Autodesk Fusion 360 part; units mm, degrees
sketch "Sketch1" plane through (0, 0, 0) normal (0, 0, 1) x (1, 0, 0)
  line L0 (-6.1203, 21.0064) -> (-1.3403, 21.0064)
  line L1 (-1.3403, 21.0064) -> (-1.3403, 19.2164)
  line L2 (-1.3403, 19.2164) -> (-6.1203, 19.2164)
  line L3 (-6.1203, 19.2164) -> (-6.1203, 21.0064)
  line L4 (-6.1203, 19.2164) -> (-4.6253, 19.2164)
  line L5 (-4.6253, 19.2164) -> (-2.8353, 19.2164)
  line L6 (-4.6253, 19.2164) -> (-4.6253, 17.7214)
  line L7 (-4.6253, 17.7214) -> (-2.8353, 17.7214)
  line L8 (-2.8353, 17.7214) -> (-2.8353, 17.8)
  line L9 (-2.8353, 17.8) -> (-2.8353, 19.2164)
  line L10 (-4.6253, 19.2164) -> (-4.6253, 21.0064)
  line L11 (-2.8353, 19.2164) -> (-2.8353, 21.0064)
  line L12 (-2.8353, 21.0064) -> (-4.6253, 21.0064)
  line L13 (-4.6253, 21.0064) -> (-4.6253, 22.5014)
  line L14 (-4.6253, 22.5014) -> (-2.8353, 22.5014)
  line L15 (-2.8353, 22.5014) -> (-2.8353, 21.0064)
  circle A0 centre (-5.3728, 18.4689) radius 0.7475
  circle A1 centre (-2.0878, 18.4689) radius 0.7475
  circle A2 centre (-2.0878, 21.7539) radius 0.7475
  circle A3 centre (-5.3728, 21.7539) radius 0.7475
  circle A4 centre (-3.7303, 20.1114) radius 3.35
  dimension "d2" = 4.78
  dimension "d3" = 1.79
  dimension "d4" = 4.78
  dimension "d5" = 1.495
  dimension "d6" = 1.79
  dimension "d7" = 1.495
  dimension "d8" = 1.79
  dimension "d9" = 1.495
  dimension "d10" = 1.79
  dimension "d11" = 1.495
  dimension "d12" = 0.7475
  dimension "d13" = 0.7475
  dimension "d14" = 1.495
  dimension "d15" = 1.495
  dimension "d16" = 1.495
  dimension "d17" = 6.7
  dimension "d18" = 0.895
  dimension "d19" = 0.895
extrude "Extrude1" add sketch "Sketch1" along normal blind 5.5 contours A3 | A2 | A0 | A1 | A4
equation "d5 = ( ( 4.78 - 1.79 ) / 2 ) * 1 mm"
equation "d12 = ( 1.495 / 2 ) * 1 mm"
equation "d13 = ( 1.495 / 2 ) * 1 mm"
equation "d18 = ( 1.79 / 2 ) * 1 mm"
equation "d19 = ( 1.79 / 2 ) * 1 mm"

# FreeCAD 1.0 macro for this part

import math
import FreeCAD as App
import Part
import Sketcher

V = App.Vector

doc = App.newDocument("Part")
body = doc.addObject("PartDesign::Body", "Body")

sketch1 = body.newObject("Sketcher::SketchObject", "Sketch")
sketch1.AttachmentSupport = (doc.getObject("XY_Plane"), [""])
sketch1.MapMode = "FlatFace"
sketch1.addGeometry([
    Part.Circle(V(-3.7, 20.1, 0), V(0, 0, 1), 3.4),
    Part.ArcOfCircle(Part.Circle(V(-5.4, 21.8, 0), V(0, 0, 1), 0.7), math.radians(-90), math.radians(0)),
    Part.LineSegment(V(-4.6, 21.8, 0), V(-4.6, 22.5, 0)),
    Part.LineSegment(V(-4.6, 22.5, 0), V(-2.8, 22.5, 0)),
    Part.LineSegment(V(-2.8, 22.5, 0), V(-2.8, 21.8, 0)),
    Part.ArcOfCircle(Part.Circle(V(-2.1, 21.8, 0), V(0, 0, 1), 0.7), math.radians(180), math.radians(270)),
    Part.LineSegment(V(-2.1, 21, 0), V(-1.3, 21, 0)),
    Part.LineSegment(V(-1.3, 21, 0), V(-1.3, 19.2, 0)),
    Part.LineSegment(V(-1.3, 19.2, 0), V(-2.1, 19.2, 0)),
    Part.ArcOfCircle(Part.Circle(V(-2.1, 18.5, 0), V(0, 0, 1), 0.7), math.radians(90), math.radians(180)),
    Part.LineSegment(V(-2.8, 18.5, 0), V(-2.8, 17.7, 0)),
    Part.LineSegment(V(-2.8, 17.7, 0), V(-4.6, 17.7, 0)),
    Part.LineSegment(V(-4.6, 17.7, 0), V(-4.6, 18.5, 0)),
    Part.ArcOfCircle(Part.Circle(V(-5.4, 18.5, 0), V(0, 0, 1), 0.7), math.radians(0), math.radians(90)),
    Part.LineSegment(V(-5.4, 19.2, 0), V(-6.1, 19.2, 0)),
    Part.LineSegment(V(-6.1, 19.2, 0), V(-6.1, 21, 0)),
    Part.LineSegment(V(-6.1, 21, 0), V(-5.4, 21, 0)),
], False)
sketch1.addConstraint([
    Sketcher.Constraint("Tangent", 1, 2, 2, 1),
    Sketcher.Constraint("Coincident", 2, 2, 3, 1),
    Sketcher.Constraint("Coincident", 3, 2, 4, 1),
    Sketcher.Constraint("Tangent", 4, 2, 5, 1),
    Sketcher.Constraint("Tangent", 5, 2, 6, 1),
    Sketcher.Constraint("Coincident", 6, 2, 7, 1),
    Sketcher.Constraint("Coincident", 7, 2, 8, 1),
    Sketcher.Constraint("Tangent", 8, 2, 9, 1),
    Sketcher.Constraint("Tangent", 9, 2, 10, 1),
    Sketcher.Constraint("Coincident", 10, 2, 11, 1),
    Sketcher.Constraint("Coincident", 11, 2, 12, 1),
    Sketcher.Constraint("Tangent", 12, 2, 13, 1),
    Sketcher.Constraint("Tangent", 13, 2, 14, 1),
    Sketcher.Constraint("Coincident", 14, 2, 15, 1),
    Sketcher.Constraint("Coincident", 15, 2, 16, 1),
    Sketcher.Constraint("Tangent", 16, 2, 1, 1),
    Sketcher.Constraint("Vertical", 2),
    Sketcher.Constraint("Horizontal", 3),
    Sketcher.Constraint("Vertical", 4),
    Sketcher.Constraint("Horizontal", 6),
    Sketcher.Constraint("Vertical", 7),
    Sketcher.Constraint("Horizontal", 8),
    Sketcher.Constraint("Vertical", 10),
    Sketcher.Constraint("Horizontal", 11),
    Sketcher.Constraint("Vertical", 12),
    Sketcher.Constraint("Horizontal", 14),
    Sketcher.Constraint("Vertical", 15),
    Sketcher.Constraint("Horizontal", 16),
    Sketcher.Constraint("Equal", 1, 5),
    Sketcher.Constraint("Equal", 5, 9),
    Sketcher.Constraint("Equal", 9, 13),
    Sketcher.Constraint("Horizontal", 1, 3, 5, 3),
    Sketcher.Constraint("Horizontal", 9, 3, 13, 3),
    Sketcher.Constraint("Vertical", 5, 3, 9, 3),
    Sketcher.Constraint("Vertical", 1, 3, 13, 3),
    Sketcher.Constraint("Equal", 8, 14),
    Sketcher.Constraint("Equal", 16, 2),
    Sketcher.Constraint("Equal", 11, 7),
    Sketcher.Constraint("Equal", 4, 10),
    Sketcher.Constraint("Diameter", 0, 6.7),
    Sketcher.Constraint("DistanceX", 3, 1, 3, 2, 1.79),
    Sketcher.Constraint("Radius", 1, 0.7475),
    Sketcher.Constraint("DistanceX", 6, 1, 6, 2, 0.7475),
    Sketcher.Constraint("DistanceX", 1, 2, 0, 3, 0.895),
    Sketcher.Constraint("DistanceY", 0, 3, 5, 2, 0.895),
    Sketcher.Constraint("DistanceY", -1, 1, 1, 3, 21.754),
    Sketcher.Constraint("DistanceX", 0, 3, -1, 1, 3.7303),
])
pad1 = body.newObject("PartDesign::Pad", "Pad")
pad1.Profile = sketch1
pad1.Length = 5.5

doc.recompute()
